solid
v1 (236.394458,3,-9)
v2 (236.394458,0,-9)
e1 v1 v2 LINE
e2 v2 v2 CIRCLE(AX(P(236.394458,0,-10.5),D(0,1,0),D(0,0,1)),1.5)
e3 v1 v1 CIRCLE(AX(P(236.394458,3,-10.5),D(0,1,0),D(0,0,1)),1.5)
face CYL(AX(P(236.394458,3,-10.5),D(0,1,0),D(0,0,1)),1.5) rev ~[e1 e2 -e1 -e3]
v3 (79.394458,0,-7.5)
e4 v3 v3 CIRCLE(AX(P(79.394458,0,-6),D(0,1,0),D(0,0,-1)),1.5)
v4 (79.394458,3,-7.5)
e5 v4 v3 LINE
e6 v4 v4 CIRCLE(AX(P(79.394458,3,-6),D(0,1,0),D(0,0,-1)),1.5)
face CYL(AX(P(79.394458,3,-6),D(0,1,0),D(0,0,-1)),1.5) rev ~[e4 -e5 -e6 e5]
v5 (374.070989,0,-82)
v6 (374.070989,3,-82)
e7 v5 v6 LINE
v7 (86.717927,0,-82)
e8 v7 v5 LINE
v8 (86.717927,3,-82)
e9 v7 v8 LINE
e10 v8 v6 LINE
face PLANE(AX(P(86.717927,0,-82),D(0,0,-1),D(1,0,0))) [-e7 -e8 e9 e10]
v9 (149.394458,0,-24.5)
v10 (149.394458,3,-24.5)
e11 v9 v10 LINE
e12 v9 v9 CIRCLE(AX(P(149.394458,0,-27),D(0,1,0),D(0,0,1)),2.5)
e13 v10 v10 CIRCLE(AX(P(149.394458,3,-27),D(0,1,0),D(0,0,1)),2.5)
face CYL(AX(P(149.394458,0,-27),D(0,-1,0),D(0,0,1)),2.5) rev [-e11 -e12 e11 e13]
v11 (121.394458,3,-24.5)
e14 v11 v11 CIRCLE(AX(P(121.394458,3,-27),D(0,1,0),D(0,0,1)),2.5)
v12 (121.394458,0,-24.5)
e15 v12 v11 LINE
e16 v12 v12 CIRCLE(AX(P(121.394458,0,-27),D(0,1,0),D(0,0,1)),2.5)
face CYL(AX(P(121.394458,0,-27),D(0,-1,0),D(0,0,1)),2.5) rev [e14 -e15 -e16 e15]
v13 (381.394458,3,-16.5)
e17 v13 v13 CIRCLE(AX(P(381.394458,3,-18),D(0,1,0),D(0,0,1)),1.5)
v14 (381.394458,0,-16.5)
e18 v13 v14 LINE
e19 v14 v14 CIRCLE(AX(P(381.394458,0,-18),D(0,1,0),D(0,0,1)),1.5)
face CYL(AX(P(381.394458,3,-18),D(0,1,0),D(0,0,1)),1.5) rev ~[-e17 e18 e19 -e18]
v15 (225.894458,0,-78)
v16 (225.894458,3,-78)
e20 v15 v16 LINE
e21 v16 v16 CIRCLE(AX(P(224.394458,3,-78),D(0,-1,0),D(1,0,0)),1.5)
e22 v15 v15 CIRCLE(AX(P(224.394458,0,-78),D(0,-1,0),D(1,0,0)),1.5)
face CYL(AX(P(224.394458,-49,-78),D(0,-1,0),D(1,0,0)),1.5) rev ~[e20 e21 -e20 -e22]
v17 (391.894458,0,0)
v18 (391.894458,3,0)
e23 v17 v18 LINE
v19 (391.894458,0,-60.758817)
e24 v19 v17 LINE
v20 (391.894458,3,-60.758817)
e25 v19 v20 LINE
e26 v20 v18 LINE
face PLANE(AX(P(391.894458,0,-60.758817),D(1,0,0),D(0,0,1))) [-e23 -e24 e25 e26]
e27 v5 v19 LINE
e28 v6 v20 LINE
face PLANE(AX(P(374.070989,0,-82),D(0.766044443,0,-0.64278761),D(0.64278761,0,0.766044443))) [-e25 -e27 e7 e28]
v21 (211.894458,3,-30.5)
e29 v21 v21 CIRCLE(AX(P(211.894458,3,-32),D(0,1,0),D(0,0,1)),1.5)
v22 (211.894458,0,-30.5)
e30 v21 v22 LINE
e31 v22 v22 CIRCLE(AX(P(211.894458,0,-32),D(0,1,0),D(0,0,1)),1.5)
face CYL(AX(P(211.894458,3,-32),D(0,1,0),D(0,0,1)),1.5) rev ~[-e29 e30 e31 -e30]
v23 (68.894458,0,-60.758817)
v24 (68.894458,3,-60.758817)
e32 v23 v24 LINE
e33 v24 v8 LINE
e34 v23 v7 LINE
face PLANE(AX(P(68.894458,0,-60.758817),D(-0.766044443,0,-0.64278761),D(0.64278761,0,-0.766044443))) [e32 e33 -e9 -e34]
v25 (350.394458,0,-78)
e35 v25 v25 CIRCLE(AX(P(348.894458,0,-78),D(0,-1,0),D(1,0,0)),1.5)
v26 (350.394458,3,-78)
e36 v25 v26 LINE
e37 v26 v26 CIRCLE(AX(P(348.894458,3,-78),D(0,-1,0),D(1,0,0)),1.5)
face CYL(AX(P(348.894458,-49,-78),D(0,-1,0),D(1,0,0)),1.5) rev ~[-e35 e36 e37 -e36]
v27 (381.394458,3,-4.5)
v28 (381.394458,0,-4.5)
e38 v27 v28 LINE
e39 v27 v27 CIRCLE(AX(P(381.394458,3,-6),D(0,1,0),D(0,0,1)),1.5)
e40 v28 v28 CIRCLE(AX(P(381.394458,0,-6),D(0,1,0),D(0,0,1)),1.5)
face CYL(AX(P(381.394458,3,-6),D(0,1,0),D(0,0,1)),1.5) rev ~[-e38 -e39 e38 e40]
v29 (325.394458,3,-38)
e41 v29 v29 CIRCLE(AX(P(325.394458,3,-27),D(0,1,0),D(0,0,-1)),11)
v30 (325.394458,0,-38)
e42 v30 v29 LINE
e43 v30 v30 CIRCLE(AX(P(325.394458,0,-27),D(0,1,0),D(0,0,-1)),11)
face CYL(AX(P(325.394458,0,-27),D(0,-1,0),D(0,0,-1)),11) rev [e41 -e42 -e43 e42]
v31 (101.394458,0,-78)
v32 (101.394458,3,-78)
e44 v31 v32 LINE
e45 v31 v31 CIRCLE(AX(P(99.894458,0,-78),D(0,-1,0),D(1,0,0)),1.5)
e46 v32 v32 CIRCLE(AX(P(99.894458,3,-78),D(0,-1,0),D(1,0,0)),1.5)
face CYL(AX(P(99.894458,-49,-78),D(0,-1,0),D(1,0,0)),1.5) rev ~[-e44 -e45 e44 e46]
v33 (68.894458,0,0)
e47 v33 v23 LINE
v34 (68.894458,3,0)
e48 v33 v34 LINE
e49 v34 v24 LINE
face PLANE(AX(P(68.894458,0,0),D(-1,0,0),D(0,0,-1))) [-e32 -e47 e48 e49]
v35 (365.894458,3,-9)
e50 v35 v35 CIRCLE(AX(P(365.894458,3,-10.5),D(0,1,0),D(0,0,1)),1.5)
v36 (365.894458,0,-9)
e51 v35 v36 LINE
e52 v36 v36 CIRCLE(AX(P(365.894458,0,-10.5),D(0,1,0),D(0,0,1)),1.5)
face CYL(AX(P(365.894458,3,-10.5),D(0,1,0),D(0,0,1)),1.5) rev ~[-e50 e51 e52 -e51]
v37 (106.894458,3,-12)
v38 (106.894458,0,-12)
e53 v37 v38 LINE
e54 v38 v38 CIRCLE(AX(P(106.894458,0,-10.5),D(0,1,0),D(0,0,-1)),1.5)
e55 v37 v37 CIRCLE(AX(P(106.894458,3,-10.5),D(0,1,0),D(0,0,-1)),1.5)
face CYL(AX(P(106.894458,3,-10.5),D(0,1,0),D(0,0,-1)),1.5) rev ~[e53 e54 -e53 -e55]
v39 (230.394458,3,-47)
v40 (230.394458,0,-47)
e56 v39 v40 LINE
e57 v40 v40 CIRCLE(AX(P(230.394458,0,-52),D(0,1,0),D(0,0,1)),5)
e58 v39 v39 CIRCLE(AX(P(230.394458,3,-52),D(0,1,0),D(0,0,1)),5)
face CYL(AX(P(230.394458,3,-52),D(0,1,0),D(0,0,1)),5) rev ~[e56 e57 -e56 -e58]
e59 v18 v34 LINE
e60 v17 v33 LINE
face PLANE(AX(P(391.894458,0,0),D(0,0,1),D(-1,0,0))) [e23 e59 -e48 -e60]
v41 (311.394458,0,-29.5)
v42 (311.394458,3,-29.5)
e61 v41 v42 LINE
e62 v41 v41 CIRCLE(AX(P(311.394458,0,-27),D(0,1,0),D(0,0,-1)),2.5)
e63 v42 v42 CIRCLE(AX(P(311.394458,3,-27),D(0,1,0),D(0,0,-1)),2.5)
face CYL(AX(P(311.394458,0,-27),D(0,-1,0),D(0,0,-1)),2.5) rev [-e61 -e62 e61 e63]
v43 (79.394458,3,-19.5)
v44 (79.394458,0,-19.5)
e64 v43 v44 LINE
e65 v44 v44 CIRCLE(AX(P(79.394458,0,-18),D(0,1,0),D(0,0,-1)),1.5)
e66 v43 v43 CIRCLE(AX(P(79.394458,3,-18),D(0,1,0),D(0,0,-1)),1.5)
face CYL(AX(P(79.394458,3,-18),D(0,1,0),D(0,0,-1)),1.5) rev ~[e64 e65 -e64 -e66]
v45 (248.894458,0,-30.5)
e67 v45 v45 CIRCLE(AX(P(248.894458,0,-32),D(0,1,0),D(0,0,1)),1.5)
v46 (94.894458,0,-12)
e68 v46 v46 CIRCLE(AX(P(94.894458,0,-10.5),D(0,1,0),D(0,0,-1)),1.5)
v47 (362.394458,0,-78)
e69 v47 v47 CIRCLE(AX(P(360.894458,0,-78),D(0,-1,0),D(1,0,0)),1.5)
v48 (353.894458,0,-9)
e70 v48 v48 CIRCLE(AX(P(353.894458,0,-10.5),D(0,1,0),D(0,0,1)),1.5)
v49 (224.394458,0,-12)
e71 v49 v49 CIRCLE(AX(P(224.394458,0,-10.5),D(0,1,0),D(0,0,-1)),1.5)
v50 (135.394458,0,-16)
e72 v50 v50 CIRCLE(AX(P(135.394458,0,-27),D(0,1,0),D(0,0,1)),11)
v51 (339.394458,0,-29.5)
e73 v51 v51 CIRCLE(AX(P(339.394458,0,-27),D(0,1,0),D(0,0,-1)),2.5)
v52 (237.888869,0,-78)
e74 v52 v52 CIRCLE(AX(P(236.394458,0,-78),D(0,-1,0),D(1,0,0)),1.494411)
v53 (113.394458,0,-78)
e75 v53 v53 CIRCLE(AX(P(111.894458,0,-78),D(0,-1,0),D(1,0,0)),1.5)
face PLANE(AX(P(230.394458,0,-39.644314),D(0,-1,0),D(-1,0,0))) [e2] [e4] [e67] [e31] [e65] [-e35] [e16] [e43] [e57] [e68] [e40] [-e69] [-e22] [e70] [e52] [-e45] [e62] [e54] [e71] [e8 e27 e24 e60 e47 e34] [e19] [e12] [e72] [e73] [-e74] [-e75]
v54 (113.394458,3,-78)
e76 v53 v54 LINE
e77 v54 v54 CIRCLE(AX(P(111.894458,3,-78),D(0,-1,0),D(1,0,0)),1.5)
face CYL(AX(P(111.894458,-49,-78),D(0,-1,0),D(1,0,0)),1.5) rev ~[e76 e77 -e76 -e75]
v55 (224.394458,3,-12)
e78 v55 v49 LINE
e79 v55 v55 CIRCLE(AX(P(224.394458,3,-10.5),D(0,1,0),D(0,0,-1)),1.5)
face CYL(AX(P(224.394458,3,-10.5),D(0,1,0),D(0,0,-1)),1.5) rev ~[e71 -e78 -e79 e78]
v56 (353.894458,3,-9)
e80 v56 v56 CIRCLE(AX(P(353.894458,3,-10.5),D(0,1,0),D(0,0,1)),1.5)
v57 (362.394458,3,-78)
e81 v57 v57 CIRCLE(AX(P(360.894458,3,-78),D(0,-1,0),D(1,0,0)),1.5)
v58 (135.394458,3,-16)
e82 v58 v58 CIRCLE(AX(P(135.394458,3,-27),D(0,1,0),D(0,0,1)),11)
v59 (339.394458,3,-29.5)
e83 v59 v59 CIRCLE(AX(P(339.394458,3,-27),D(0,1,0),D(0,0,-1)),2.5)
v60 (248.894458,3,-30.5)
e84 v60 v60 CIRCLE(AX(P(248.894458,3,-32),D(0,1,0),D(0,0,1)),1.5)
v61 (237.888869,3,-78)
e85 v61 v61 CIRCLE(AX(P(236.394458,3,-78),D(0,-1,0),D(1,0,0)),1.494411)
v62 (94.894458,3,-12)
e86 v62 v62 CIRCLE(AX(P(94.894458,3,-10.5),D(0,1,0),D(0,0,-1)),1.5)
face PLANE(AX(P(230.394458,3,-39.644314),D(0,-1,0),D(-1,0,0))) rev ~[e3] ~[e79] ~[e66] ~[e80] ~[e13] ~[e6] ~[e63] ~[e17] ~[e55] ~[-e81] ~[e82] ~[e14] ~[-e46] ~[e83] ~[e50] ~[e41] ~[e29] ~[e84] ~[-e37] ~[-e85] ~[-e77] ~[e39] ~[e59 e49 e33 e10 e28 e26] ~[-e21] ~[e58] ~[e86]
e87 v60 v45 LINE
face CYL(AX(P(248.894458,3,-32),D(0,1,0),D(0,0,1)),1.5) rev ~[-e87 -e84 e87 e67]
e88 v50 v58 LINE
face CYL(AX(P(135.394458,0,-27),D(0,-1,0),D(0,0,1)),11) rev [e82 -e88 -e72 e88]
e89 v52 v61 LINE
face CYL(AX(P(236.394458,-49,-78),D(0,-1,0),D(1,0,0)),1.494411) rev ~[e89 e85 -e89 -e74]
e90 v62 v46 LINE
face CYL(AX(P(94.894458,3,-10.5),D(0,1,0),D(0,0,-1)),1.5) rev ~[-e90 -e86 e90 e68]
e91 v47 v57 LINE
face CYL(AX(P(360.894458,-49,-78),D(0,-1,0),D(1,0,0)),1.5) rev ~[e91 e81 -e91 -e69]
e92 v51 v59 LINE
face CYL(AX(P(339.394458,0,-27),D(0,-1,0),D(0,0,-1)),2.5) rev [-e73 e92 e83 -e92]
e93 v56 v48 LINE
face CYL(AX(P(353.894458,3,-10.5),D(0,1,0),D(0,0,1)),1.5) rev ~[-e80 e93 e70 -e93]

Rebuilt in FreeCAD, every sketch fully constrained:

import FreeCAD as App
import Part
import Sketcher
from FreeCAD import Vector
Q = App.Units.Quantity

doc = App.newDocument("Part")
body = doc.addObject("PartDesign::Body", "Body")

# Sketch on XZ plane
sketch1 = body.newObject("Sketcher::SketchObject", "Sketch")
sketch1.AttachmentSupport = (doc.getObject("XZ_Plane"), [""])
sketch1.MapMode = "FlatFace"
sketch1.addGeometry([
    Part.LineSegment(Vector(86.7, -82, 0), Vector(68.9, -60.8, 0)),  # 0
    Part.LineSegment(Vector(68.9, -60.8, 0), Vector(68.9, 0, 0)),  # 1
    Part.LineSegment(Vector(68.9, 0, 0), Vector(391.9, 0, 0)),  # 2
    Part.LineSegment(Vector(391.9, 0, 0), Vector(391.9, -60.8, 0)),  # 3
    Part.LineSegment(Vector(391.9, -60.8, 0), Vector(374.1, -82, 0)),  # 4
    Part.LineSegment(Vector(374.1, -82, 0), Vector(86.7, -82, 0)),  # 5
    Part.Circle(Vector(339.4, -27, 0), Vector(0, 0, 1), 2.5),  # 6
    Part.Circle(Vector(325.4, -27, 0), Vector(0, 0, 1), 11),  # 7
    Part.Circle(Vector(311.4, -27, 0), Vector(0, 0, 1), 2.5),  # 8
    Part.Circle(Vector(149.4, -27, 0), Vector(0, 0, 1), 2.5),  # 9
    Part.Circle(Vector(135.4, -27, 0), Vector(0, 0, 1), 11),  # 10
    Part.Circle(Vector(121.4, -27, 0), Vector(0, 0, 1), 2.5),  # 11
], False)
sketch1.addConstraint([
    Sketcher.Constraint("Coincident", 0, 2, 1, 1),
    Sketcher.Constraint("Coincident", 1, 2, 2, 1),
    Sketcher.Constraint("Coincident", 2, 2, 3, 1),
    Sketcher.Constraint("Coincident", 3, 2, 4, 1),
    Sketcher.Constraint("Coincident", 4, 2, 5, 1),
    Sketcher.Constraint("Coincident", 5, 2, 0, 1),
    Sketcher.Constraint("Vertical", 1),
    Sketcher.Constraint("Horizontal", 2),
    Sketcher.Constraint("Vertical", 3),
    Sketcher.Constraint("Horizontal", 5),
    Sketcher.Constraint("Equal", 6, 8),
    Sketcher.Constraint("Equal", 8, 9),
    Sketcher.Constraint("Equal", 7, 10),
    Sketcher.Constraint("Equal", 9, 11),
    Sketcher.Constraint("PointOnObject", 1, 2, -1),
    Sketcher.Constraint("Horizontal", 6, 3, 7, 3),
    Sketcher.Constraint("Horizontal", 7, 3, 8, 3),
    Sketcher.Constraint("Horizontal", 8, 3, 9, 3),
    Sketcher.Constraint("Horizontal", 9, 3, 10, 3),
    Sketcher.Constraint("Horizontal", 10, 3, 11, 3),
    Sketcher.Constraint("Horizontal", 0, 2, 3, 2),
    Sketcher.Constraint("Equal", 0, 4),
    Sketcher.Constraint("Diameter", 6, 5.0),
    Sketcher.Constraint("Diameter", 7, 22.0),
    Sketcher.Constraint("DistanceX", 2, 1, 2, 2, 323.0),
    Sketcher.Constraint("Angle", 0, Q("130 deg")),
    Sketcher.Constraint("DistanceY", 6, 3, -1, 1, 27.0),
    Sketcher.Constraint("DistanceY", 4, 2, -1, 1, 82.0),
    Sketcher.Constraint("DistanceX", 7, 3, 6, 3, 14.0),
    Sketcher.Constraint("DistanceX", 8, 3, 7, 3, 14.0),
    Sketcher.Constraint("DistanceX", 9, 3, 8, 3, 162.0),
    Sketcher.Constraint("DistanceX", 10, 3, 9, 3, 14.0),
    Sketcher.Constraint("DistanceX", 11, 3, 10, 3, 14.0),
    Sketcher.Constraint("DistanceX", 0, 2, 11, 3, 52.5),
    Sketcher.Constraint("DistanceX", 5, 2, 5, 1, 287.353063),
    Sketcher.Constraint("DistanceX", -1, 1, 6, 3, 339.394458),
])
pad1 = body.newObject("PartDesign::Pad", "Pad")
pad1.Profile = sketch1
pad1.Length = 3
pad1.Reversed = True

# Sketch on XZ plane
sketch2 = body.newObject("Sketcher::SketchObject", "Sketch001")
sketch2.AttachmentSupport = (doc.getObject("XZ_Plane"), [""])
sketch2.MapMode = "FlatFace"
sketch2.AttachmentOffset = App.Placement(Vector(0, 0, -3), App.Rotation())
sketch2.addGeometry([
    Part.Circle(Vector(236.4, -10.5, 0), Vector(0, 0, 1), 1.5),  # 0
    Part.Circle(Vector(353.9, -10.5, 0), Vector(0, 0, 1), 1.5),  # 1
    Part.Circle(Vector(365.9, -10.5, 0), Vector(0, 0, 1), 1.5),  # 2
    Part.Circle(Vector(381.4, -6, 0), Vector(0, 0, 1), 1.5),  # 3
    Part.Circle(Vector(381.4, -18, 0), Vector(0, 0, 1), 1.5),  # 4
    Part.Circle(Vector(79.4, -18, 0), Vector(0, 0, 1), 1.5),  # 5
    Part.Circle(Vector(79.4, -6, 0), Vector(0, 0, 1), 1.5),  # 6
    Part.Circle(Vector(94.9, -10.5, 0), Vector(0, 0, 1), 1.5),  # 7
    Part.Circle(Vector(106.9, -10.5, 0), Vector(0, 0, 1), 1.5),  # 8
    Part.Circle(Vector(224.4, -10.5, 0), Vector(0, 0, 1), 1.5),  # 9
], False)
sketch2.addConstraint([
    Sketcher.Constraint("Equal", 0, 1),
    Sketcher.Constraint("Equal", 1, 2),
    Sketcher.Constraint("Equal", 2, 3),
    Sketcher.Constraint("Equal", 3, 4),
    Sketcher.Constraint("Equal", 4, 5),
    Sketcher.Constraint("Equal", 5, 6),
    Sketcher.Constraint("Equal", 6, 7),
    Sketcher.Constraint("Equal", 7, 8),
    Sketcher.Constraint("Equal", 8, 9),
    Sketcher.Constraint("Horizontal", 0, 3, 1, 3),
    Sketcher.Constraint("Horizontal", 1, 3, 2, 3),
    Sketcher.Constraint("Horizontal", 4, 3, 5, 3),
    Sketcher.Constraint("Horizontal", 3, 3, 6, 3),
    Sketcher.Constraint("Horizontal", 2, 3, 7, 3),
    Sketcher.Constraint("Horizontal", 7, 3, 8, 3),
    Sketcher.Constraint("Horizontal", 8, 3, 9, 3),
    Sketcher.Constraint("Vertical", 3, 3, 4, 3),
    Sketcher.Constraint("Vertical", 5, 3, 6, 3),
    Sketcher.Constraint("Diameter", 0, 3.0),
    Sketcher.Constraint("DistanceY", 3, 3, -1, 1, 6.0),
    Sketcher.Constraint("DistanceY", 4, 3, -1, 1, 18.0),
    Sketcher.Constraint("DistanceX", 1, 3, 2, 3, 12.0),
    Sketcher.Constraint("DistanceX", 0, 3, 3, 3, 145.0),
    Sketcher.Constraint("DistanceX", 5, 3, 0, 3, 157.0),
    Sketcher.Constraint("DistanceX", 7, 3, 1, 3, 259.0),
    Sketcher.Constraint("DistanceX", 7, 3, 8, 3, 12.0),
    Sketcher.Constraint("DistanceX", 9, 3, 0, 3, 12.0),
    Sketcher.Constraint("DistanceY", 0, 3, -1, 1, 10.5),
    Sketcher.Constraint("DistanceX", 0, 3, 1, 3, 117.5),
    Sketcher.Constraint("DistanceX", -1, 1, 0, 3, 236.394458),
])
pocket1 = body.newObject("PartDesign::Pocket", "Pocket")
pocket1.Profile = sketch2
pocket1.Type = "ThroughAll"
pocket1.Reversed = True

# Sketch on XZ plane
sketch3 = body.newObject("Sketcher::SketchObject", "Sketch002")
sketch3.AttachmentSupport = (doc.getObject("XZ_Plane"), [""])
sketch3.MapMode = "FlatFace"
sketch3.AttachmentOffset = App.Placement(Vector(0, 0, -3), App.Rotation())
sketch3.addGeometry([
    Part.Circle(Vector(248.9, -32, 0), Vector(0, 0, 1), 1.5),
    Part.Circle(Vector(211.9, -32, 0), Vector(0, 0, 1), 1.5),
], False)
sketch3.addConstraint([
    Sketcher.Constraint("Equal", 0, 1),
    Sketcher.Constraint("Horizontal", 0, 3, 1, 3),
    Sketcher.Constraint("Diameter", 0, 3.0),
    Sketcher.Constraint("DistanceY", 0, 3, -1, 1, 32.0),
    Sketcher.Constraint("DistanceX", 1, 3, 0, 3, 37.0),
    Sketcher.Constraint("DistanceX", -1, 1, 0, 3, 248.894458),
])
pocket2 = body.newObject("PartDesign::Pocket", "Pocket001")
pocket2.Profile = sketch3
pocket2.Length = 10
pocket2.Reversed = True

# Sketch on XZ plane
sketch4 = body.newObject("Sketcher::SketchObject", "Sketch003")
sketch4.AttachmentSupport = (doc.getObject("XZ_Plane"), [""])
sketch4.MapMode = "FlatFace"
sketch4.AttachmentOffset = App.Placement(Vector(0, 0, 49), App.Rotation())
sketch4.addGeometry([
    Part.Circle(Vector(236.4, -78, 0), Vector(0, 0, 1), 1.5),  # 0
    Part.Circle(Vector(224.4, -78, 0), Vector(0, 0, 1), 1.5),  # 1
    Part.Circle(Vector(348.9, -78, 0), Vector(0, 0, 1), 1.5),  # 2
    Part.Circle(Vector(360.9, -78, 0), Vector(0, 0, 1), 1.5),  # 3
    Part.Circle(Vector(111.9, -78, 0), Vector(0, 0, 1), 1.5),  # 4
    Part.Circle(Vector(99.9, -78, 0), Vector(0, 0, 1), 1.5),  # 5
], False)
sketch4.addConstraint([
    Sketcher.Constraint("Equal", 1, 2),
    Sketcher.Constraint("Equal", 2, 3),
    Sketcher.Constraint("Equal", 3, 4),
    Sketcher.Constraint("Equal", 4, 5),
    Sketcher.Constraint("Horizontal", 0, 3, 1, 3),
    Sketcher.Constraint("Horizontal", 1, 3, 2, 3),
    Sketcher.Constraint("Horizontal", 2, 3, 3, 3),
    Sketcher.Constraint("Horizontal", 3, 3, 4, 3),
    Sketcher.Constraint("Horizontal", 4, 3, 5, 3),
    Sketcher.Constraint("Diameter", 1, 3.0),
    Sketcher.Constraint("DistanceY", 0, 3, -1, 1, 78.0),
    Sketcher.Constraint("DistanceX", 1, 3, 0, 3, 12.0),
    Sketcher.Constraint("DistanceX", 2, 3, 3, 3, 12.0),
    Sketcher.Constraint("DistanceX", 4, 3, 2, 3, 237.0),
    Sketcher.Constraint("DistanceX", 5, 3, 4, 3, 12.0),
    Sketcher.Constraint("DistanceX", 0, 3, 2, 3, 112.5),
    Sketcher.Constraint("Diameter", 0, 2.988822),
    Sketcher.Constraint("DistanceX", -1, 1, 0, 3, 236.394458),
])
pocket3 = body.newObject("PartDesign::Pocket", "Pocket002")
pocket3.Profile = sketch4
pocket3.Type = "ThroughAll"

# Sketch on XZ plane
sketch5 = body.newObject("Sketcher::SketchObject", "Sketch004")
sketch5.AttachmentSupport = (doc.getObject("XZ_Plane"), [""])
sketch5.MapMode = "FlatFace"
sketch5.AttachmentOffset = App.Placement(Vector(0, 0, -3), App.Rotation())
sketch5.addGeometry(Part.Circle(Vector(230, -52, 0), Vector(0, 0, 1), 5), False)
sketch5.addConstraint([
    Sketcher.Constraint("Diameter", 0, 10.0),
    Sketcher.Constraint("DistanceY", 0, 3, -1, 1, 52.0),
    Sketcher.Constraint("DistanceX", -1, 1, 0, 3, 230.394458),
])
pocket4 = body.newObject("PartDesign::Pocket", "Pocket003")
pocket4.Profile = sketch5
pocket4.Type = "ThroughAll"
pocket4.Reversed = True

doc.recompute()
